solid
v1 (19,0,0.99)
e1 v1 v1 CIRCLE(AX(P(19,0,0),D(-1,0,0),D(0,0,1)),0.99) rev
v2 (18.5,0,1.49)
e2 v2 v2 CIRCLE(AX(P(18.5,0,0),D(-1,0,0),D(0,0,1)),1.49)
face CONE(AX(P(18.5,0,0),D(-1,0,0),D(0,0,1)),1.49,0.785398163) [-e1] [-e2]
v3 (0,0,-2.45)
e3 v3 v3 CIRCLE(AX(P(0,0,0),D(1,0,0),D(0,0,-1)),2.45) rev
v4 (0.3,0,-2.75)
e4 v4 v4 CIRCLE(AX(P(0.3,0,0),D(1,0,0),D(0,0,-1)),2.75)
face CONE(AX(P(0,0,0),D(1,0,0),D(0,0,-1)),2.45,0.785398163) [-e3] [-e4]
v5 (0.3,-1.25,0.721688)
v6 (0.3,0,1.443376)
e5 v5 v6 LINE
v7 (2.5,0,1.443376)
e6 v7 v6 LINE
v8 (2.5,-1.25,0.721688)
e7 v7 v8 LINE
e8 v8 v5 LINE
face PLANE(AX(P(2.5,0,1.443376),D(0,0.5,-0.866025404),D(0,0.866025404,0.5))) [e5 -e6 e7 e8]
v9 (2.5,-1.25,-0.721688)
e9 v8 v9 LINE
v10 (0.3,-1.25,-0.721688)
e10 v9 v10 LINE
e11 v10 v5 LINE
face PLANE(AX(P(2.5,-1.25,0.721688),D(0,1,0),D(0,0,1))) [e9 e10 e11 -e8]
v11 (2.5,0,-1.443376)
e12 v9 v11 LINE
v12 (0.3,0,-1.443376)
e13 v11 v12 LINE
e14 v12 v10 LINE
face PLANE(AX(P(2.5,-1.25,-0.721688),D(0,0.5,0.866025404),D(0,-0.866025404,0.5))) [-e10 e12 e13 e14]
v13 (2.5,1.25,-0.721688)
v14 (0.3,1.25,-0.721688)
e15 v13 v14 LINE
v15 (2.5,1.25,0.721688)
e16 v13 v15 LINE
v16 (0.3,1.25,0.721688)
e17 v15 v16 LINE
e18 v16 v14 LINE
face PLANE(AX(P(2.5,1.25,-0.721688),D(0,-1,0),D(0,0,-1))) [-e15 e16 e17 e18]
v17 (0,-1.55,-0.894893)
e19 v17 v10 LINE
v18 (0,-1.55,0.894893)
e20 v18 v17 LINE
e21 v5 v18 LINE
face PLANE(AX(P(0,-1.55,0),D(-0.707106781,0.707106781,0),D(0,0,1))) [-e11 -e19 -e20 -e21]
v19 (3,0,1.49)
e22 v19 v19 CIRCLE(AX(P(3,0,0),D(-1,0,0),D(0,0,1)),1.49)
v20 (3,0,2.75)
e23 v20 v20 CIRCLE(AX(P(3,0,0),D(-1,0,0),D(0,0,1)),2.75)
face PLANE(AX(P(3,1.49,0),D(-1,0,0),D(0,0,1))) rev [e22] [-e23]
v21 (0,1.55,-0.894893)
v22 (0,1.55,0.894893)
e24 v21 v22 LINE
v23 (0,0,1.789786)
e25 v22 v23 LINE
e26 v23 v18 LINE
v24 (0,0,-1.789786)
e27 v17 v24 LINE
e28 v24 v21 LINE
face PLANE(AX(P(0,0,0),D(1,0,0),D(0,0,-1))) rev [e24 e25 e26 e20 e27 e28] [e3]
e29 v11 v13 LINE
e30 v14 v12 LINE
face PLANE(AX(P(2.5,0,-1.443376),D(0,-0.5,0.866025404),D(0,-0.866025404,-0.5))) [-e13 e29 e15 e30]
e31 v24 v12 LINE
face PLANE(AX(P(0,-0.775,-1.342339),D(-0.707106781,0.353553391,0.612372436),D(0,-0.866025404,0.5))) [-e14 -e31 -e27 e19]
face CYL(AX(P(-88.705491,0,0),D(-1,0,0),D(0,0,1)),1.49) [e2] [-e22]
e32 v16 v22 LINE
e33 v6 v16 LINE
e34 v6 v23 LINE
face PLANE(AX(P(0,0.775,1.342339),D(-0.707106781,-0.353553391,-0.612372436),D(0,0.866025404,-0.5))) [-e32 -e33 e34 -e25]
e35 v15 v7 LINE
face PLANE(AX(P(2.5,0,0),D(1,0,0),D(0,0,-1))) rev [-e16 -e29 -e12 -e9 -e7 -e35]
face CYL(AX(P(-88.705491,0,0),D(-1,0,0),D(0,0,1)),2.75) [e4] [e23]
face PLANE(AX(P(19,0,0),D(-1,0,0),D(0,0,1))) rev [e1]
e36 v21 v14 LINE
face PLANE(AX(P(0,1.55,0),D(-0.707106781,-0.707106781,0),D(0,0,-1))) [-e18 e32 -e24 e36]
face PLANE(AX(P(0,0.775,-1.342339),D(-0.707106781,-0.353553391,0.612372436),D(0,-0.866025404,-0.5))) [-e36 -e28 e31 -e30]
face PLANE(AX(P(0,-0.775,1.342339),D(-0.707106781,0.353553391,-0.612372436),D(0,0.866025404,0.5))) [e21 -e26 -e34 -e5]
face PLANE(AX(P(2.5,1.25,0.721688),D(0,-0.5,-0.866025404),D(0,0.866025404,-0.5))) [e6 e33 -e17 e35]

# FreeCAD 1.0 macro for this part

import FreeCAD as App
import Part
import Sketcher

V = App.Vector
Q = App.Units.Quantity


def edges_at(feature, points):
    """Names of the edges that pass closest to the given points."""
    edges = feature.Shape.Edges
    near = lambda p: min(range(len(edges)), key=lambda i: edges[i].distToShape(Part.Vertex(*p))[0])
    return sorted({f"Edge{near(p) + 1}" for p in points})


def add_polygon(sketch, points):
    """Adds a closed chain of lines whose ends are joined by coincident constraints."""
    first, n = sketch.GeometryCount, len(points)
    for a, b in zip(points, points[1:] + points[:1]):
        sketch.addGeometry(Part.LineSegment(App.Vector(*a, 0), App.Vector(*b, 0)), False)
    for i in range(n):
        sketch.addConstraint(Sketcher.Constraint("Coincident", first + i, 2, first + (i + 1) % n, 1))

doc = App.newDocument("Part")
params = doc.addObject("Spreadsheet::Sheet", "Params")
for row, (alias, value) in enumerate([
    ("sketch1_width", "19 mm"),
    ("sketch1_width2", "16 mm"),
    ("sketch1_height", "2.75 mm"),
    ("sketch1_height2", "1.49 mm"),
    ("revolution_angle", "360 deg"),
    ("chamfer_size", "0.5 mm"),
    ("chamfer2_size", "0.3 mm"),
    ("pocket1_length", "2.5 mm"),
    ("chamfer3_size", "0.3 mm"),
], start=1):
    params.set(f"A{row}", alias)
    params.set(f"B{row}", "=" + value)
    params.setAlias(f"B{row}", alias)

body = doc.addObject("PartDesign::Body", "Body")

# Sketch on XY plane
sketch1 = doc.addObject("Sketcher::SketchObject", "Sketch")
body.addObject(sketch1)
sketch1.AttachmentSupport = (doc.XY_Plane, [""])
sketch1.MapMode = "FlatFace"
add_polygon(sketch1, [(0, 2.8), (0, 0), (19, 0), (19, 1.5), (3, 1.5), (3, 2.8)])  # lines 0-5
sketch1.addConstraint([
    Sketcher.Constraint("Vertical", 0),
    Sketcher.Constraint("Horizontal", 1),
    Sketcher.Constraint("Vertical", 2),
    Sketcher.Constraint("Horizontal", 3),
    Sketcher.Constraint("Vertical", 4),
    Sketcher.Constraint("Horizontal", 5),
    Sketcher.Constraint("Coincident", 0, 2, -1, 1),
    Sketcher.Constraint("DistanceX", 1, 1, 1, 2, 19.0),
    Sketcher.Constraint("DistanceX", 3, 2, 3, 1, 16.0),
    Sketcher.Constraint("DistanceY", 0, 2, 0, 1, 2.75),
    Sketcher.Constraint("DistanceY", 2, 1, 2, 2, 1.49),
])
sketch1.setExpression("Constraints[13]", "Params.sketch1_width")
sketch1.setExpression("Constraints[14]", "Params.sketch1_width2")
sketch1.setExpression("Constraints[15]", "Params.sketch1_height")
sketch1.setExpression("Constraints[16]", "Params.sketch1_height2")
revolution = doc.addObject("PartDesign::Revolution", "Revolution")
body.addObject(revolution)
revolution.Profile = sketch1
revolution.ReferenceAxis = (sketch1, ["H_Axis"])
revolution.setExpression("Angle", "Params.revolution_angle")
doc.recompute()

chamfer = doc.addObject("PartDesign::Chamfer", "Chamfer")
body.addObject(chamfer)
chamfer.Base = (revolution, edges_at(revolution, [(19, -1.49, 0)]))
chamfer.setExpression("Size", "Params.chamfer_size")
doc.recompute()

chamfer2 = doc.addObject("PartDesign::Chamfer", "Chamfer001")
body.addObject(chamfer2)
chamfer2.Base = (chamfer, edges_at(chamfer, [(0, -2.75, 0)]))
chamfer2.setExpression("Size", "Params.chamfer2_size")

# Sketch on YZ plane
sketch2 = doc.addObject("Sketcher::SketchObject", "Sketch001")
body.addObject(sketch2)
sketch2.AttachmentSupport = (doc.YZ_Plane, [""])
sketch2.MapMode = "FlatFace"
add_polygon(sketch2, [(0, 1.4), (-1.2, 0.7), (-1.2, -0.7), (0, -1.4), (1.2, -0.7), (1.2, 0.7)])  # lines 0-5
sketch2.addConstraint([
    Sketcher.Constraint("Vertical", 1),
    Sketcher.Constraint("Vertical", 4),
    Sketcher.Constraint("Symmetric", 0, 2, 3, 2, -1, 1),
    Sketcher.Constraint("Symmetric", 2, 2, 5, 2, -1, 1),
    Sketcher.Constraint("PointOnObject", 2, 2, -2),
    Sketcher.Constraint("Parallel", 2, 5),
    Sketcher.Constraint("Horizontal", 1, 2, 3, 2),
    Sketcher.Constraint("Angle", 0, Q("-150 deg")),
    Sketcher.Constraint("DistanceX", 1, 2, 3, 2, 2.5),
    Sketcher.Constraint("DistanceY", 1, 2, 1, 1, 1.443376),
])
pocket1 = doc.addObject("PartDesign::Pocket", "Pocket")
body.addObject(pocket1)
pocket1.Profile = sketch2
pocket1.setExpression("Length", "Params.pocket1_length")
pocket1.Reversed = True
doc.recompute()

chamfer3 = doc.addObject("PartDesign::Chamfer", "Chamfer002")
body.addObject(chamfer3)
chamfer3.Base = (pocket1, edges_at(pocket1, [
    (0, 0.625, 1.083),
    (0, -0.625, 1.083),
    (0, -1.25, 0),
    (0, -0.625, -1.083),
    (0, 0.625, -1.083),
    (0, 1.25, 0),
]))
chamfer3.setExpression("Size", "Params.chamfer3_size")

doc.recompute()
